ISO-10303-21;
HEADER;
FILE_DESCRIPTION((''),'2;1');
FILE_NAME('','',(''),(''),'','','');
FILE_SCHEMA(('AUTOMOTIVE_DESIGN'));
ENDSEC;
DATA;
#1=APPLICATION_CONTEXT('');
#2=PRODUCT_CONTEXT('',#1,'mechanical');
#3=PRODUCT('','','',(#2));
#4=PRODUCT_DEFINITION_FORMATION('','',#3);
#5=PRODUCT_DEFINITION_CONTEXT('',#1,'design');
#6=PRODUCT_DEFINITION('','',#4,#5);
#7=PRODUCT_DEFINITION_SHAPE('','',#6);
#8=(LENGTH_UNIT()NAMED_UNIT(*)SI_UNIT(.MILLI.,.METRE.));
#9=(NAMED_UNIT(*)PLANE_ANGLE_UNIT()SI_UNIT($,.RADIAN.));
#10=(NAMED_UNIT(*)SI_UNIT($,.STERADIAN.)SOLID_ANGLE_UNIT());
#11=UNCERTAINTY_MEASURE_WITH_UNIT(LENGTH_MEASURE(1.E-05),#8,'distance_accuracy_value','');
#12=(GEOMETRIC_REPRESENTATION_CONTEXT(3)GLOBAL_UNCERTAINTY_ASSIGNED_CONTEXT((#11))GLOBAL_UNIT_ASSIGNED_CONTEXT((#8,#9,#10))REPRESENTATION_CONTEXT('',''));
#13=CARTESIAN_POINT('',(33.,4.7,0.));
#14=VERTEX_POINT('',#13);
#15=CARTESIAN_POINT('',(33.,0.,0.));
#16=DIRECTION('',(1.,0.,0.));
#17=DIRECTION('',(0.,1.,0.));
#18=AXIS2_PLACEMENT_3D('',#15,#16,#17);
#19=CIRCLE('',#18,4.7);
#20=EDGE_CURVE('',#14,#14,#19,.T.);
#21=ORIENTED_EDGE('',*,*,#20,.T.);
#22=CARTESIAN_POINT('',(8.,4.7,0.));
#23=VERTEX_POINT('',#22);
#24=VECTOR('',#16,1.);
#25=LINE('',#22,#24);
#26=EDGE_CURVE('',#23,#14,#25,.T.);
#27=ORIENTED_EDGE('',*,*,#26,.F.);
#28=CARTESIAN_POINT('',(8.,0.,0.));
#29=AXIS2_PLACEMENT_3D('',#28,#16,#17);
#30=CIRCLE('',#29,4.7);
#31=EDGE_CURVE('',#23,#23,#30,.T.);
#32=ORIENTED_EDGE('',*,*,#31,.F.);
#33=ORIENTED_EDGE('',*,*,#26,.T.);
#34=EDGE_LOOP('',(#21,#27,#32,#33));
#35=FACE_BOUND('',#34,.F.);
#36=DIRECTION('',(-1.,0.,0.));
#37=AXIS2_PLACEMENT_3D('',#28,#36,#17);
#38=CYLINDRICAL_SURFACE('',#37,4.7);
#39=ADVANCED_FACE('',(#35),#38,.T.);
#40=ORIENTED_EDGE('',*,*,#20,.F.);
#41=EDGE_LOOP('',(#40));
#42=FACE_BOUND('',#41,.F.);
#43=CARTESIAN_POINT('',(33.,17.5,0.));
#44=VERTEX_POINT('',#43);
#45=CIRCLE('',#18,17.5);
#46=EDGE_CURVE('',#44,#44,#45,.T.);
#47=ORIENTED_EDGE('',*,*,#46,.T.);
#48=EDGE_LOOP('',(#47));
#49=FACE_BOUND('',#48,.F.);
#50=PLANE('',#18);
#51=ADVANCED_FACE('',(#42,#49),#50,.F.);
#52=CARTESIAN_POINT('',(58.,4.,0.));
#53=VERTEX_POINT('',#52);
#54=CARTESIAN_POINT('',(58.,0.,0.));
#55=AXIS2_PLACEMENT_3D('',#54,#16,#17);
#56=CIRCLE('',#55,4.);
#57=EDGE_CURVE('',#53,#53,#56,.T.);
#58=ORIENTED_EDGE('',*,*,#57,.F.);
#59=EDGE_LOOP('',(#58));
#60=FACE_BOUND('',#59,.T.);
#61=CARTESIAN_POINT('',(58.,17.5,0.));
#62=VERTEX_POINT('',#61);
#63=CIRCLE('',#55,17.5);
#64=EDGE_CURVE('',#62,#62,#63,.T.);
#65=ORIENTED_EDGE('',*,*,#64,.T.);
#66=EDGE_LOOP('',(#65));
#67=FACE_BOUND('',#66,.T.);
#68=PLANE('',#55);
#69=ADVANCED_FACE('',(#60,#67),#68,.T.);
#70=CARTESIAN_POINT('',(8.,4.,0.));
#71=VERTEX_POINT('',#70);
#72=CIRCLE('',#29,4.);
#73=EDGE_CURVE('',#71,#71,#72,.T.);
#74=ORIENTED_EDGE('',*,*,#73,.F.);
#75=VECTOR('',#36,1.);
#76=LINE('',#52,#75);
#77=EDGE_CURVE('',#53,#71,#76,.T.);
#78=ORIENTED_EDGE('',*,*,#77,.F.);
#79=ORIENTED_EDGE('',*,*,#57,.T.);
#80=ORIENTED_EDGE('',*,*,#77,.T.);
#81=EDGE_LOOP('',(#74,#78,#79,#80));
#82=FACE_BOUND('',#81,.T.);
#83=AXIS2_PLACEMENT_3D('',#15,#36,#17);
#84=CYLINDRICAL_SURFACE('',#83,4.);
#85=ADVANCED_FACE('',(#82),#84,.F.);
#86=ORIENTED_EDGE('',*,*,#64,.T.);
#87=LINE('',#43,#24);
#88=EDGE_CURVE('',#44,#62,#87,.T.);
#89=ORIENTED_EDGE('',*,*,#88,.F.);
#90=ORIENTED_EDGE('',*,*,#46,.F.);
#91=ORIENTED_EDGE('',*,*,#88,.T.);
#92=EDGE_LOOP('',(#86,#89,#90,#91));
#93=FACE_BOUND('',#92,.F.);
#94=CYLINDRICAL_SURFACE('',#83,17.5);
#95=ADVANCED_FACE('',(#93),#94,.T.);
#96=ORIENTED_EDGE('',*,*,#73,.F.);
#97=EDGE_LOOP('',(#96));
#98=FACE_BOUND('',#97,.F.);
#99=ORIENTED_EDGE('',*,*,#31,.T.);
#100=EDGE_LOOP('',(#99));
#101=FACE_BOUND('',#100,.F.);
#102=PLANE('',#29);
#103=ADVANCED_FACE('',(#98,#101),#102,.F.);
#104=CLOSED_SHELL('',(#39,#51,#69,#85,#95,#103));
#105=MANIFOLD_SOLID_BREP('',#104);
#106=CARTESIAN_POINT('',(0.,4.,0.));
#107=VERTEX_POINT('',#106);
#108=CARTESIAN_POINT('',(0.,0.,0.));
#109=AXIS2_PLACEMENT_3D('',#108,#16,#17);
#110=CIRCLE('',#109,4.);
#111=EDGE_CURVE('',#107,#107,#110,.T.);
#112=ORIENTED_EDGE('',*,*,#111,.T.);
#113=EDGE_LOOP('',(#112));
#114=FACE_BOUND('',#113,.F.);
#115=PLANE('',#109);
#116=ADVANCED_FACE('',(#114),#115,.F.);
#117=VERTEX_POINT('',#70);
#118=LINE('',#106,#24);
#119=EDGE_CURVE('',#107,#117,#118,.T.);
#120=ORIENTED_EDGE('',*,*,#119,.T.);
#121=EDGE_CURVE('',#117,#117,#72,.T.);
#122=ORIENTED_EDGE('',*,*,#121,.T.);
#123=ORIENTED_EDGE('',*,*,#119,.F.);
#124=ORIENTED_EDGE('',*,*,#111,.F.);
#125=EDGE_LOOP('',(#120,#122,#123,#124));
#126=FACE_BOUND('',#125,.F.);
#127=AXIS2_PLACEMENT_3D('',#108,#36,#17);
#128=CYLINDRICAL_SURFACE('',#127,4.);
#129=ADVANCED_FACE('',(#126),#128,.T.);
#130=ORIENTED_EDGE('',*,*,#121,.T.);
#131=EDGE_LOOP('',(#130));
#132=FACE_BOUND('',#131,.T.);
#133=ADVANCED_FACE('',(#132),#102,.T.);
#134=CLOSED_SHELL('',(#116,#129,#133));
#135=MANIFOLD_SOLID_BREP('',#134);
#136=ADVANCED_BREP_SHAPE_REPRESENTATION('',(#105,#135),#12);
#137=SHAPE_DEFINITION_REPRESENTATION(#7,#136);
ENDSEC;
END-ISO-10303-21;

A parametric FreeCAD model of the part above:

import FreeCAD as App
import Part
import Sketcher
from FreeCAD import Vector
Q = App.Units.Quantity

doc = App.newDocument("Part")
body = doc.addObject("PartDesign::Body", "Body")
body.AllowCompound = True

# Sketch on YZ plane
sketch1 = doc.addObject("Sketcher::SketchObject", "Sketch")
body.addObject(sketch1)
sketch1.AttachmentSupport = (doc.YZ_Plane, [""])
sketch1.MapMode = "FlatFace"
sketch1.addGeometry(Part.Circle(Vector(0, 0, 0), Vector(0, 0, 1), 4), False)
sketch1.addConstraint(Sketcher.Constraint("Coincident", 0, 3, -1, 1))
sketch1.addConstraint(Sketcher.Constraint("Diameter", 0, Q("8 mm")))
pad1 = doc.addObject("PartDesign::Pad", "Pad")
body.addObject(pad1)
pad1.Profile = sketch1
pad1.Length = 8

# Sketch on YZ plane
sketch2 = doc.addObject("Sketcher::SketchObject", "Sketch001")
body.addObject(sketch2)
sketch2.AttachmentSupport = (doc.YZ_Plane, [""])
sketch2.MapMode = "FlatFace"
sketch2.AttachmentOffset = App.Placement(Vector(0, 0, 8), App.Rotation())
sketch2.addGeometry(Part.Circle(Vector(0, 0, 0), Vector(0, 0, 1), 4.7), False)
sketch2.addGeometry(Part.Circle(Vector(0, 0, 0), Vector(0, 0, 1), 4), False)
sketch2.addConstraint(Sketcher.Constraint("Coincident", 0, 3, -1, 1))
sketch2.addConstraint(Sketcher.Constraint("Coincident", 1, 3, -1, 1))
sketch2.addConstraint(Sketcher.Constraint("Diameter", 1, Q("8 mm")))
sketch2.addConstraint(Sketcher.Constraint("Diameter", 0, Q("9.4 mm")))
pad2 = doc.addObject("PartDesign::Pad", "Pad001")
body.addObject(pad2)
pad2.Profile = sketch2
pad2.Length = 25

# Sketch on YZ plane
sketch3 = doc.addObject("Sketcher::SketchObject", "Sketch002")
body.addObject(sketch3)
sketch3.AttachmentSupport = (doc.YZ_Plane, [""])
sketch3.MapMode = "FlatFace"
sketch3.AttachmentOffset = App.Placement(Vector(0, 0, 33), App.Rotation())
sketch3.addGeometry(Part.Circle(Vector(0, 0, 0), Vector(0, 0, 1), 17.5), False)
sketch3.addGeometry(Part.Circle(Vector(0, 0, 0), Vector(0, 0, 1), 4), False)
sketch3.addConstraint(Sketcher.Constraint("Coincident", 0, 3, -1, 1))
sketch3.addConstraint(Sketcher.Constraint("Coincident", 1, 3, -1, 1))
sketch3.addConstraint(Sketcher.Constraint("Diameter", 0, Q("35 mm")))
sketch3.addConstraint(Sketcher.Constraint("Diameter", 1, Q("8 mm")))
pad3 = doc.addObject("PartDesign::Pad", "Pad002")
body.addObject(pad3)
pad3.Profile = sketch3
pad3.Length = 25

doc.recompute()
